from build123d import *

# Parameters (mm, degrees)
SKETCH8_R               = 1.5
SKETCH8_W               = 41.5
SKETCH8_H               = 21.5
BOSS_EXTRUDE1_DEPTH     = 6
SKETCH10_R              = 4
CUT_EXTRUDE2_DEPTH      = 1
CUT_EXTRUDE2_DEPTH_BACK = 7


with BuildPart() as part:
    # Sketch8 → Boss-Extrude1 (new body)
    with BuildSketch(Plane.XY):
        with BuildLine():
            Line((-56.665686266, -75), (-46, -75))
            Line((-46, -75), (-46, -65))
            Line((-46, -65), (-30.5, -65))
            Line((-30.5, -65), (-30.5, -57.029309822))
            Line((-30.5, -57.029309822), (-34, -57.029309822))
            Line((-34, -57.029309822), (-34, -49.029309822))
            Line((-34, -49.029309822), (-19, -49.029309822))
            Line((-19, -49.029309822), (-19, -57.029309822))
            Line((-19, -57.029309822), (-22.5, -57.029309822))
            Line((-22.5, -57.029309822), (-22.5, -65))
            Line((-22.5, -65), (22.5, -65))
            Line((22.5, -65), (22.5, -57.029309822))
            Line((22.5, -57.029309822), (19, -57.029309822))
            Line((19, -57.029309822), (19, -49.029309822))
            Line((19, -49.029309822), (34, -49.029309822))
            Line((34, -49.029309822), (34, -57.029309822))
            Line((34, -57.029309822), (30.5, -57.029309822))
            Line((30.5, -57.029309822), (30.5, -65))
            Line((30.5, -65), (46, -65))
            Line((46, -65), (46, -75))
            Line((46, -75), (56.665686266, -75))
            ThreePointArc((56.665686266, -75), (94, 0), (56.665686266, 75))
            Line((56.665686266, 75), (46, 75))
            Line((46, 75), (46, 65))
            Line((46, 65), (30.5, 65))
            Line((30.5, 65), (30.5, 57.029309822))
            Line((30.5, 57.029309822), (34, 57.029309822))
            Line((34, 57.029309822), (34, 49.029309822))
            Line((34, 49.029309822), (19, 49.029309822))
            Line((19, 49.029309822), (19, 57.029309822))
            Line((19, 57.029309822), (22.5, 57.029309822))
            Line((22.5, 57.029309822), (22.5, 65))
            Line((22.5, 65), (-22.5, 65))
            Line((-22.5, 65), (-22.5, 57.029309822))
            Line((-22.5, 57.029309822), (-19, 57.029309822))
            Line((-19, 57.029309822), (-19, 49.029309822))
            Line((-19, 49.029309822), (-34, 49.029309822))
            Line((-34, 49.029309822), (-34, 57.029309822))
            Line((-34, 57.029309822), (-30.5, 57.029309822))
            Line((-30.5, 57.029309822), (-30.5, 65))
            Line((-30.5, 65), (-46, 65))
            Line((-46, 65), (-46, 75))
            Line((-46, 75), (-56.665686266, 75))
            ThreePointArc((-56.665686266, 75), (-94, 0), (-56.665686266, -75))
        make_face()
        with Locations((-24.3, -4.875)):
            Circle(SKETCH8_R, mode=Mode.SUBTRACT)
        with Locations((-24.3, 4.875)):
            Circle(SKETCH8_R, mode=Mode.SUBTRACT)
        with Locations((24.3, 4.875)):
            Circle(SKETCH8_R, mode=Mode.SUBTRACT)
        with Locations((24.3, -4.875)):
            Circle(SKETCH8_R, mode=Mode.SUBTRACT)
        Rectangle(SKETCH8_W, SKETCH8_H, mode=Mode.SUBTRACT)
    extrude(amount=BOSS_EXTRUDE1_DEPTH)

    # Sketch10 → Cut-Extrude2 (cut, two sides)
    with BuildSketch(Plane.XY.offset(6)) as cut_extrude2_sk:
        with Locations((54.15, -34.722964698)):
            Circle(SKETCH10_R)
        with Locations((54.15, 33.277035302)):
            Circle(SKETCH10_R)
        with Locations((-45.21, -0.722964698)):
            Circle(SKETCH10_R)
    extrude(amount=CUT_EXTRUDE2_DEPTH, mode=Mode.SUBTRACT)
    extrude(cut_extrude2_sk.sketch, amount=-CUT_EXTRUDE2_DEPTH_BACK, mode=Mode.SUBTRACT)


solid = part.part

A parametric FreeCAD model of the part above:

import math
import FreeCAD as App
import Part
import Sketcher

V = App.Vector


def add_polygon(sketch, points):
    """Adds a closed chain of lines whose ends are joined by coincident constraints."""
    first, n = sketch.GeometryCount, len(points)
    for a, b in zip(points, points[1:] + points[:1]):
        sketch.addGeometry(Part.LineSegment(App.Vector(*a, 0), App.Vector(*b, 0)), False)
    for i in range(n):
        sketch.addConstraint(Sketcher.Constraint("Coincident", first + i, 2, first + (i + 1) % n, 1))

doc = App.newDocument("Part")
body = doc.addObject("PartDesign::Body", "Body")

# Sketch on XY plane
sketch1 = doc.addObject("Sketcher::SketchObject", "Sketch")
body.addObject(sketch1)
sketch1.AttachmentSupport = (doc.XY_Plane, [""])
sketch1.MapMode = "FlatFace"
sketch1.addGeometry(Part.LineSegment(V(-56.7, -75, 0), V(-46, -75, 0)), False)  # 0
sketch1.addGeometry(Part.LineSegment(V(-46, -75, 0), V(-46, -65, 0)), False)  # 1
sketch1.addGeometry(Part.LineSegment(V(-46, -65, 0), V(-30.5, -65, 0)), False)  # 2
sketch1.addGeometry(Part.LineSegment(V(-30.5, -65, 0), V(-30.5, -57, 0)), False)  # 3
sketch1.addGeometry(Part.LineSegment(V(-30.5, -57, 0), V(-34, -57, 0)), False)  # 4
sketch1.addGeometry(Part.LineSegment(V(-34, -57, 0), V(-34, -49, 0)), False)  # 5
sketch1.addGeometry(Part.LineSegment(V(-34, -49, 0), V(-19, -49, 0)), False)  # 6
sketch1.addGeometry(Part.LineSegment(V(-19, -49, 0), V(-19, -57, 0)), False)  # 7
sketch1.addGeometry(Part.LineSegment(V(-19, -57, 0), V(-22.5, -57, 0)), False)  # 8
sketch1.addGeometry(Part.LineSegment(V(-22.5, -57, 0), V(-22.5, -65, 0)), False)  # 9
sketch1.addGeometry(Part.LineSegment(V(-22.5, -65, 0), V(22.5, -65, 0)), False)  # 10
sketch1.addGeometry(Part.LineSegment(V(22.5, -65, 0), V(22.5, -57, 0)), False)  # 11
sketch1.addGeometry(Part.LineSegment(V(22.5, -57, 0), V(19, -57, 0)), False)  # 12
sketch1.addGeometry(Part.LineSegment(V(19, -57, 0), V(19, -49, 0)), False)  # 13
sketch1.addGeometry(Part.LineSegment(V(19, -49, 0), V(34, -49, 0)), False)  # 14
sketch1.addGeometry(Part.LineSegment(V(34, -49, 0), V(34, -57, 0)), False)  # 15
sketch1.addGeometry(Part.LineSegment(V(34, -57, 0), V(30.5, -57, 0)), False)  # 16
sketch1.addGeometry(Part.LineSegment(V(30.5, -57, 0), V(30.5, -65, 0)), False)  # 17
sketch1.addGeometry(Part.LineSegment(V(30.5, -65, 0), V(46, -65, 0)), False)  # 18
sketch1.addGeometry(Part.LineSegment(V(46, -65, 0), V(46, -75, 0)), False)  # 19
sketch1.addGeometry(Part.LineSegment(V(46, -75, 0), V(56.7, -75, 0)), False)  # 20
sketch1.addGeometry(Part.ArcOfCircle(Part.Circle(V(0, 0, 0), V(0, 0, 1), 94), math.radians(-53), math.radians(53)), False)  # 21
sketch1.addGeometry(Part.LineSegment(V(56.7, 75, 0), V(46, 75, 0)), False)  # 22
sketch1.addGeometry(Part.LineSegment(V(46, 75, 0), V(46, 65, 0)), False)  # 23
sketch1.addGeometry(Part.LineSegment(V(46, 65, 0), V(30.5, 65, 0)), False)  # 24
sketch1.addGeometry(Part.LineSegment(V(30.5, 65, 0), V(30.5, 57, 0)), False)  # 25
sketch1.addGeometry(Part.LineSegment(V(30.5, 57, 0), V(34, 57, 0)), False)  # 26
sketch1.addGeometry(Part.LineSegment(V(34, 57, 0), V(34, 49, 0)), False)  # 27
sketch1.addGeometry(Part.LineSegment(V(34, 49, 0), V(19, 49, 0)), False)  # 28
sketch1.addGeometry(Part.LineSegment(V(19, 49, 0), V(19, 57, 0)), False)  # 29
sketch1.addGeometry(Part.LineSegment(V(19, 57, 0), V(22.5, 57, 0)), False)  # 30
sketch1.addGeometry(Part.LineSegment(V(22.5, 57, 0), V(22.5, 65, 0)), False)  # 31
sketch1.addGeometry(Part.LineSegment(V(22.5, 65, 0), V(-22.5, 65, 0)), False)  # 32
sketch1.addGeometry(Part.LineSegment(V(-22.5, 65, 0), V(-22.5, 57, 0)), False)  # 33
sketch1.addGeometry(Part.LineSegment(V(-22.5, 57, 0), V(-19, 57, 0)), False)  # 34
sketch1.addGeometry(Part.LineSegment(V(-19, 57, 0), V(-19, 49, 0)), False)  # 35
sketch1.addGeometry(Part.LineSegment(V(-19, 49, 0), V(-34, 49, 0)), False)  # 36
sketch1.addGeometry(Part.LineSegment(V(-34, 49, 0), V(-34, 57, 0)), False)  # 37
sketch1.addGeometry(Part.LineSegment(V(-34, 57, 0), V(-30.5, 57, 0)), False)  # 38
sketch1.addGeometry(Part.LineSegment(V(-30.5, 57, 0), V(-30.5, 65, 0)), False)  # 39
sketch1.addGeometry(Part.LineSegment(V(-30.5, 65, 0), V(-46, 65, 0)), False)  # 40
sketch1.addGeometry(Part.LineSegment(V(-46, 65, 0), V(-46, 75, 0)), False)  # 41
sketch1.addGeometry(Part.LineSegment(V(-46, 75, 0), V(-56.7, 75, 0)), False)  # 42
sketch1.addGeometry(Part.ArcOfCircle(Part.Circle(V(0, 0, 0), V(0, 0, 1), 94), math.radians(127), math.radians(233)), False)  # 43
sketch1.addGeometry(Part.Circle(V(-24.3, -4.9, 0), V(0, 0, 1), 1.5), False)  # 44
sketch1.addGeometry(Part.Circle(V(24.3, -4.9, 0), V(0, 0, 1), 1.5), False)  # 45
sketch1.addGeometry(Part.Circle(V(-24.3, 4.9, 0), V(0, 0, 1), 1.5), False)  # 46
add_polygon(sketch1, [(20.8, -10.8), (-20.8, -10.8), (-20.8, 10.8), (20.8, 10.8)])  # lines 47-50
sketch1.addGeometry(Part.Circle(V(24.3, 4.9, 0), V(0, 0, 1), 1.5), False)  # 51
sketch1.addConstraint([
    Sketcher.Constraint("Coincident", 0, 2, 1, 1),
    Sketcher.Constraint("Coincident", 1, 2, 2, 1),
    Sketcher.Constraint("Coincident", 2, 2, 3, 1),
    Sketcher.Constraint("Coincident", 3, 2, 4, 1),
    Sketcher.Constraint("Coincident", 4, 2, 5, 1),
    Sketcher.Constraint("Coincident", 5, 2, 6, 1),
    Sketcher.Constraint("Coincident", 6, 2, 7, 1),
    Sketcher.Constraint("Coincident", 7, 2, 8, 1),
    Sketcher.Constraint("Coincident", 8, 2, 9, 1),
    Sketcher.Constraint("Coincident", 9, 2, 10, 1),
    Sketcher.Constraint("Coincident", 10, 2, 11, 1),
    Sketcher.Constraint("Coincident", 11, 2, 12, 1),
    Sketcher.Constraint("Coincident", 12, 2, 13, 1),
    Sketcher.Constraint("Coincident", 13, 2, 14, 1),
    Sketcher.Constraint("Coincident", 14, 2, 15, 1),
    Sketcher.Constraint("Coincident", 15, 2, 16, 1),
    Sketcher.Constraint("Coincident", 16, 2, 17, 1),
    Sketcher.Constraint("Coincident", 17, 2, 18, 1),
    Sketcher.Constraint("Coincident", 18, 2, 19, 1),
    Sketcher.Constraint("Coincident", 19, 2, 20, 1),
    Sketcher.Constraint("Coincident", 20, 2, 21, 1),
    Sketcher.Constraint("Coincident", 21, 2, 22, 1),
    Sketcher.Constraint("Coincident", 22, 2, 23, 1),
    Sketcher.Constraint("Coincident", 23, 2, 24, 1),
    Sketcher.Constraint("Coincident", 24, 2, 25, 1),
    Sketcher.Constraint("Coincident", 25, 2, 26, 1),
    Sketcher.Constraint("Coincident", 26, 2, 27, 1),
    Sketcher.Constraint("Coincident", 27, 2, 28, 1),
    Sketcher.Constraint("Coincident", 28, 2, 29, 1),
    Sketcher.Constraint("Coincident", 29, 2, 30, 1),
    Sketcher.Constraint("Coincident", 30, 2, 31, 1),
    Sketcher.Constraint("Coincident", 31, 2, 32, 1),
    Sketcher.Constraint("Coincident", 32, 2, 33, 1),
    Sketcher.Constraint("Coincident", 33, 2, 34, 1),
    Sketcher.Constraint("Coincident", 34, 2, 35, 1),
    Sketcher.Constraint("Coincident", 35, 2, 36, 1),
    Sketcher.Constraint("Coincident", 36, 2, 37, 1),
    Sketcher.Constraint("Coincident", 37, 2, 38, 1),
    Sketcher.Constraint("Coincident", 38, 2, 39, 1),
    Sketcher.Constraint("Coincident", 39, 2, 40, 1),
    Sketcher.Constraint("Coincident", 40, 2, 41, 1),
    Sketcher.Constraint("Coincident", 41, 2, 42, 1),
    Sketcher.Constraint("Coincident", 42, 2, 43, 1),
    Sketcher.Constraint("Coincident", 43, 2, 0, 1),
    Sketcher.Constraint("Horizontal", 0),
    Sketcher.Constraint("Vertical", 1),
    Sketcher.Constraint("Horizontal", 2),
    Sketcher.Constraint("Vertical", 3),
    Sketcher.Constraint("Horizontal", 4),
    Sketcher.Constraint("Vertical", 5),
    Sketcher.Constraint("Horizontal", 6),
    Sketcher.Constraint("Vertical", 7),
    Sketcher.Constraint("Horizontal", 8),
    Sketcher.Constraint("Vertical", 9),
    Sketcher.Constraint("Horizontal", 10),
    Sketcher.Constraint("Vertical", 11),
    Sketcher.Constraint("Horizontal", 12),
    Sketcher.Constraint("Vertical", 13),
    Sketcher.Constraint("Horizontal", 14),
    Sketcher.Constraint("Vertical", 15),
    Sketcher.Constraint("Horizontal", 16),
    Sketcher.Constraint("Vertical", 17),
    Sketcher.Constraint("Horizontal", 18),
    Sketcher.Constraint("Vertical", 19),
    Sketcher.Constraint("Horizontal", 20),
    Sketcher.Constraint("Horizontal", 22),
    Sketcher.Constraint("Vertical", 23),
    Sketcher.Constraint("Horizontal", 24),
    Sketcher.Constraint("Vertical", 25),
    Sketcher.Constraint("Horizontal", 26),
    Sketcher.Constraint("Vertical", 27),
    Sketcher.Constraint("Horizontal", 28),
    Sketcher.Constraint("Vertical", 29),
    Sketcher.Constraint("Horizontal", 30),
    Sketcher.Constraint("Vertical", 31),
    Sketcher.Constraint("Horizontal", 32),
    Sketcher.Constraint("Vertical", 33),
    Sketcher.Constraint("Horizontal", 34),
    Sketcher.Constraint("Vertical", 35),
    Sketcher.Constraint("Horizontal", 36),
    Sketcher.Constraint("Vertical", 37),
    Sketcher.Constraint("Horizontal", 38),
    Sketcher.Constraint("Vertical", 39),
    Sketcher.Constraint("Horizontal", 40),
    Sketcher.Constraint("Vertical", 41),
    Sketcher.Constraint("Horizontal", 42),
    Sketcher.Constraint("Horizontal", 47),
    Sketcher.Constraint("Vertical", 48),
    Sketcher.Constraint("Horizontal", 49),
    Sketcher.Constraint("Vertical", 50),
    Sketcher.Constraint("Coincident", 21, 3, -1, 1),
    Sketcher.Constraint("Coincident", 43, 3, -1, 1),
    Sketcher.Constraint("Equal", 21, 43),
    Sketcher.Constraint("Equal", 44, 45),
    Sketcher.Constraint("Equal", 45, 46),
    Sketcher.Constraint("Equal", 46, 51),
    Sketcher.Constraint("Symmetric", 45, 3, 46, 3, -1, 1),
    Sketcher.Constraint("Symmetric", 44, 3, 51, 3, -1, 1),
    Sketcher.Constraint("Symmetric", 0, 2, 22, 2, -1, 1),
    Sketcher.Constraint("Symmetric", 2, 2, 24, 2, -1, 1),
    Sketcher.Constraint("Symmetric", 4, 2, 26, 2, -1, 1),
    Sketcher.Constraint("Symmetric", 6, 2, 28, 2, -1, 1),
    Sketcher.Constraint("Symmetric", 8, 2, 30, 2, -1, 1),
    Sketcher.Constraint("Symmetric", 10, 2, 32, 2, -1, 1),
    Sketcher.Constraint("Symmetric", 12, 2, 34, 2, -1, 1),
    Sketcher.Constraint("Symmetric", 14, 2, 36, 2, -1, 1),
    Sketcher.Constraint("Symmetric", 16, 2, 38, 2, -1, 1),
    Sketcher.Constraint("Symmetric", 18, 2, 40, 2, -1, 1),
    Sketcher.Constraint("Symmetric", 47, 2, 49, 2, -1, 1),
    Sketcher.Constraint("Symmetric", 44, 3, 45, 3, -2),
    Sketcher.Constraint("Symmetric", 8, 2, 11, 2, -2),
    Sketcher.Constraint("Symmetric", 6, 2, 13, 2, -2),
    Sketcher.Constraint("Symmetric", 4, 2, 15, 2, -2),
    Sketcher.Constraint("Symmetric", 2, 2, 17, 2, -2),
    Sketcher.Constraint("Symmetric", 0, 2, 19, 2, -2),
    Sketcher.Constraint("Horizontal", 4, 2, 7, 2),
    Sketcher.Constraint("Horizontal", 2, 2, 9, 2),
    Sketcher.Constraint("Horizontal", 22, 2, 41, 2),
    Sketcher.Constraint("Equal", 4, 8),
    Sketcher.Constraint("Diameter", 44, 3.0),
    Sketcher.Constraint("Radius", 21, 94.0),
    Sketcher.Constraint("DistanceX", 6, 1, 6, 2, 15.0),
    Sketcher.Constraint("DistanceX", 10, 1, 10, 2, 45.0),
    Sketcher.Constraint("DistanceY", 1, 1, 1, 2, 10.0),
    Sketcher.Constraint("DistanceY", 5, 1, 5, 2, 8.0),
    Sketcher.Constraint("DistanceX", 2, 1, 2, 2, 15.5),
    Sketcher.Constraint("DistanceX", 4, 2, 4, 1, 3.5),
    Sketcher.Constraint("DistanceX", 47, 2, 47, 1, 41.5),
    Sketcher.Constraint("DistanceY", 48, 1, 48, 2, 21.5),
    Sketcher.Constraint("DistanceY", 0, 2, -1, 1, 75.0),
    Sketcher.Constraint("DistanceX", 44, 3, -1, 1, 24.3),
    Sketcher.Constraint("DistanceY", 44, 3, 46, 3, 9.75),
    Sketcher.Constraint("DistanceY", 3, 1, 3, 2, 7.97069),
])
pad1 = doc.addObject("PartDesign::Pad", "Pad")
body.addObject(pad1)
pad1.Profile = sketch1
pad1.Length = 6

# Sketch on XY plane
sketch2 = doc.addObject("Sketcher::SketchObject", "Sketch001")
body.addObject(sketch2)
sketch2.AttachmentSupport = (doc.XY_Plane, [""])
sketch2.MapMode = "FlatFace"
sketch2.AttachmentOffset = App.Placement(V(0, 0, 6), App.Rotation())
sketch2.addGeometry([
    Part.Circle(V(54.1, -34.7, 0), V(0, 0, 1), 4),
    Part.Circle(V(54.1, 33.3, 0), V(0, 0, 1), 4),
    Part.Circle(V(-45.2, -0.7, 0), V(0, 0, 1), 4),
], False)
sketch2.addConstraint([
    Sketcher.Constraint("Equal", 0, 1),
    Sketcher.Constraint("Equal", 1, 2),
    Sketcher.Constraint("Vertical", 0, 3, 1, 3),
    Sketcher.Constraint("Diameter", 0, 8.0),
    Sketcher.Constraint("DistanceY", 0, 3, 1, 3, 68.0),
    Sketcher.Constraint("DistanceY", 0, 3, 2, 3, 34.0),
    Sketcher.Constraint("DistanceX", -1, 1, 0, 3, 54.15),
    Sketcher.Constraint("DistanceX", 2, 3, -1, 1, 45.21),
    Sketcher.Constraint("DistanceY", 0, 3, -1, 1, 34.722965),
])
pocket1 = doc.addObject("PartDesign::Pocket", "Pocket")
body.addObject(pocket1)
pocket1.Profile = sketch2
pocket1.Type = "ThroughAll"
pocket1.Midplane = True

doc.recompute()
